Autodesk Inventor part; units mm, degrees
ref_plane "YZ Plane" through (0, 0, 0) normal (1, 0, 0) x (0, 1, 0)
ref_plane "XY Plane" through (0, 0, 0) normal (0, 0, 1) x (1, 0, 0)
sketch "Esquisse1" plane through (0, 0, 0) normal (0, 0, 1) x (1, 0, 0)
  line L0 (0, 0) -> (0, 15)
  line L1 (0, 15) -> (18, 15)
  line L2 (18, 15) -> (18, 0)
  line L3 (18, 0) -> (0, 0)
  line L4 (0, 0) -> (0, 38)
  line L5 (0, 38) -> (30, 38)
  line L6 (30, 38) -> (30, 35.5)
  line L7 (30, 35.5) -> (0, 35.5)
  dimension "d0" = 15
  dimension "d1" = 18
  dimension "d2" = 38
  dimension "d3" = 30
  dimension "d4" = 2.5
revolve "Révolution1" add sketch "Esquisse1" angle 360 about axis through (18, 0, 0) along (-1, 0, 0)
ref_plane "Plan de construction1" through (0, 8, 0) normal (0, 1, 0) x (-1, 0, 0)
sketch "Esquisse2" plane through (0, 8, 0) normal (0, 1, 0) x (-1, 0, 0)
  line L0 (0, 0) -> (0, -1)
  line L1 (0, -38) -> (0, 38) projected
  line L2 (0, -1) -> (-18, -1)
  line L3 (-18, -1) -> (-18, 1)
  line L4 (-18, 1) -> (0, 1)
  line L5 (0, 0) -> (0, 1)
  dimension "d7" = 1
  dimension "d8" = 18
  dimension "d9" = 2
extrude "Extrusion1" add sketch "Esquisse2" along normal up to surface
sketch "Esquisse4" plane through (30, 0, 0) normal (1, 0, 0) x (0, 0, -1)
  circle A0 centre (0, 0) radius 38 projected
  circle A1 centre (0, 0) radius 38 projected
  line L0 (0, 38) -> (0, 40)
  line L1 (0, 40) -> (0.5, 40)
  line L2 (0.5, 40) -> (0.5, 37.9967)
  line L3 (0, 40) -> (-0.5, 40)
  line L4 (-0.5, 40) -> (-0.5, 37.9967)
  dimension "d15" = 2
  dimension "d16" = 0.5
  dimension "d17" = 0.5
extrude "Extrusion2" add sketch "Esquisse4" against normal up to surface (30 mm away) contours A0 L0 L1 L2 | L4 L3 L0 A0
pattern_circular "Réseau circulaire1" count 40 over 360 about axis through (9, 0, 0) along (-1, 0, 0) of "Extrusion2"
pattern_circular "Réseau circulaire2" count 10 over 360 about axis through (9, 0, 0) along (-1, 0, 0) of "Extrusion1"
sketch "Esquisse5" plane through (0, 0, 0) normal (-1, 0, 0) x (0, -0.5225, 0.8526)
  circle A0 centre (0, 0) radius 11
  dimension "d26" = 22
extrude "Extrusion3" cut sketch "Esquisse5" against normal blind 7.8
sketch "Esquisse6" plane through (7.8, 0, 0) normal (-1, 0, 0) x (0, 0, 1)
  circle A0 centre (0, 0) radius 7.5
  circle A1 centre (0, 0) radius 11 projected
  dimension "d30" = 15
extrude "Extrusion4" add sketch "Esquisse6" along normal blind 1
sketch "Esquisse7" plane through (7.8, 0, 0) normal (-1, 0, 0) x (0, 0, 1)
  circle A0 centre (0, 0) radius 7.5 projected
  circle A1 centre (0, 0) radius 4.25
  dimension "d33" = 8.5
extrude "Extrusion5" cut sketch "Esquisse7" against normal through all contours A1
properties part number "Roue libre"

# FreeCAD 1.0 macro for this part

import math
import FreeCAD as App
import Part
import Sketcher
Q = App.Units.Quantity

doc = App.newDocument("Part")
body = doc.addObject("PartDesign::Body", "Body")
body.AllowCompound = True

# Sketch on XY plane
sketch1 = doc.addObject("Sketcher::SketchObject", "Sketch")
body.addObject(sketch1)
sketch1.AttachmentSupport = (doc.XY_Plane, [""])
sketch1.MapMode = "FlatFace"
sketch1.addGeometry([
    Part.LineSegment(App.Vector(0, 38, 0), App.Vector(0, 35.5, 0)),  # 0
    Part.LineSegment(App.Vector(0, 35.5, 0), App.Vector(30, 35.5, 0)),  # 1
    Part.LineSegment(App.Vector(30, 35.5, 0), App.Vector(30, 38, 0)),  # 2
    Part.LineSegment(App.Vector(30, 38, 0), App.Vector(0, 38, 0)),  # 3
    Part.LineSegment(App.Vector(0, 15, 0), App.Vector(0, 0, 0)),  # 4
    Part.LineSegment(App.Vector(0, 0, 0), App.Vector(18, 0, 0)),  # 5
    Part.LineSegment(App.Vector(18, 0, 0), App.Vector(18, 15, 0)),  # 6
    Part.LineSegment(App.Vector(18, 15, 0), App.Vector(0, 15, 0)),  # 7
], False)
sketch1.addConstraint([
    Sketcher.Constraint("Coincident", 0, 2, 1, 1),
    Sketcher.Constraint("Coincident", 1, 2, 2, 1),
    Sketcher.Constraint("Coincident", 2, 2, 3, 1),
    Sketcher.Constraint("Coincident", 3, 2, 0, 1),
    Sketcher.Constraint("Coincident", 4, 2, 5, 1),
    Sketcher.Constraint("Coincident", 5, 2, 6, 1),
    Sketcher.Constraint("Coincident", 6, 2, 7, 1),
    Sketcher.Constraint("Coincident", 7, 2, 4, 1),
    Sketcher.Constraint("Vertical", 0),
    Sketcher.Constraint("Horizontal", 1),
    Sketcher.Constraint("Vertical", 2),
    Sketcher.Constraint("Horizontal", 3),
    Sketcher.Constraint("Vertical", 4),
    Sketcher.Constraint("Horizontal", 5),
    Sketcher.Constraint("Vertical", 6),
    Sketcher.Constraint("Horizontal", 7),
    Sketcher.Constraint("Coincident", 4, 2, -1, 1),
    Sketcher.Constraint("PointOnObject", 0, 2, -2),
    Sketcher.Constraint("DistanceX", 1, 1, 1, 2, Q("30 mm")),
    Sketcher.Constraint("DistanceX", 5, 1, 5, 2, Q("18 mm")),
    Sketcher.Constraint("DistanceY", 4, 2, 4, 1, Q("15 mm")),
    Sketcher.Constraint("DistanceY", 0, 2, 0, 1, Q("2.5 mm")),
    Sketcher.Constraint("DistanceY", -1, 1, 2, 2, Q("38 mm")),
])
revolution = doc.addObject("PartDesign::Revolution", "Revolution")
body.addObject(revolution)
revolution.Profile = sketch1
revolution.ReferenceAxis = (sketch1, ["H_Axis"])
revolution.Angle = 360

# Sketch on XZ plane
sketch2 = doc.addObject("Sketcher::SketchObject", "Sketch001")
body.addObject(sketch2)
sketch2.AttachmentSupport = (doc.XZ_Plane, [""])
sketch2.MapMode = "FlatFace"
sketch2.AttachmentOffset = App.Placement(App.Vector(0, 0, -8), App.Rotation())
sketch2.addGeometry([
    Part.LineSegment(App.Vector(0, -1, 0), App.Vector(0, 1, 0)),
    Part.LineSegment(App.Vector(0, 1, 0), App.Vector(18, 1, 0)),
    Part.LineSegment(App.Vector(18, 1, 0), App.Vector(18, -1, 0)),
    Part.LineSegment(App.Vector(18, -1, 0), App.Vector(0, -1, 0)),
], False)
sketch2.addConstraint([
    Sketcher.Constraint("Coincident", 0, 2, 1, 1),
    Sketcher.Constraint("Coincident", 1, 2, 2, 1),
    Sketcher.Constraint("Coincident", 2, 2, 3, 1),
    Sketcher.Constraint("Coincident", 3, 2, 0, 1),
    Sketcher.Constraint("Vertical", 0),
    Sketcher.Constraint("Horizontal", 1),
    Sketcher.Constraint("Vertical", 2),
    Sketcher.Constraint("Horizontal", 3),
    Sketcher.Constraint("Symmetric", 0, 2, 3, 2, -1, 1),
    Sketcher.Constraint("DistanceX", 1, 1, 1, 2, Q("18 mm")),
    Sketcher.Constraint("DistanceY", 0, 1, 0, 2, Q("2 mm")),
])
pad1 = doc.addObject("PartDesign::Pad", "Pad")
body.addObject(pad1)
pad1.Profile = sketch2
pad1.Length = 27.5
pad1.Reversed = True

# Sketch on YZ plane
sketch3 = doc.addObject("Sketcher::SketchObject", "Sketch002")
body.addObject(sketch3)
sketch3.AttachmentSupport = (doc.YZ_Plane, [""])
sketch3.MapMode = "FlatFace"
sketch3.AttachmentOffset = App.Placement(App.Vector(0, 0, 30), App.Rotation())
sketch3.addGeometry([
    Part.LineSegment(App.Vector(38, -0.5, 0), App.Vector(40, -0.5, 0)),
    Part.LineSegment(App.Vector(40, -0.5, 0), App.Vector(40, 0.5, 0)),
    Part.LineSegment(App.Vector(40, 0.5, 0), App.Vector(38, 0.5, 0)),
    Part.ArcOfCircle(Part.Circle(App.Vector(0, 0, 0), App.Vector(0, 0, 1), 38), math.radians(-0.75), math.radians(0.75)),
], False)
sketch3.addConstraint([
    Sketcher.Constraint("Coincident", 0, 2, 1, 1),
    Sketcher.Constraint("Coincident", 1, 2, 2, 1),
    Sketcher.Constraint("Coincident", 2, 2, 3, 2),
    Sketcher.Constraint("Coincident", 3, 1, 0, 1),
    Sketcher.Constraint("Horizontal", 0),
    Sketcher.Constraint("Vertical", 1),
    Sketcher.Constraint("Horizontal", 2),
    Sketcher.Constraint("Coincident", 3, 3, -1, 1),
    Sketcher.Constraint("Vertical", 2, 2, 3, 1),
    Sketcher.Constraint("Radius", 3, Q("38 mm")),
    Sketcher.Constraint("DistanceY", 0, 2, -1, 1, Q("0.5 mm")),
    Sketcher.Constraint("DistanceX", -1, 1, 0, 2, Q("40 mm")),
])
pad2 = doc.addObject("PartDesign::Pad", "Pad001")
body.addObject(pad2)
pad2.Profile = sketch3
pad2.Length = 30
pad2.Reversed = True
doc.recompute()

polarpattern = doc.addObject("PartDesign::PolarPattern", "PolarPattern")
body.addObject(polarpattern)
polarpattern.Originals = [pad2]
polarpattern.Axis = (doc.X_Axis, [""])
polarpattern.Angle = 360
polarpattern.Occurrences = 40
body.Tip = polarpattern
doc.recompute()

polarpattern2 = doc.addObject("PartDesign::PolarPattern", "PolarPattern001")
body.addObject(polarpattern2)
polarpattern2.Originals = [pad1]
polarpattern2.Axis = (doc.X_Axis, [""])
polarpattern2.Angle = 360
polarpattern2.Occurrences = 10
body.Tip = polarpattern2

# Sketch on YZ plane
sketch4 = doc.addObject("Sketcher::SketchObject", "Sketch003")
body.addObject(sketch4)
sketch4.AttachmentSupport = (doc.YZ_Plane, [""])
sketch4.MapMode = "FlatFace"
sketch4.addGeometry(Part.Circle(App.Vector(0, 0, 0), App.Vector(0, 0, 1), 11), False)
sketch4.addConstraint([
    Sketcher.Constraint("Coincident", 0, 3, -1, 1),
    Sketcher.Constraint("Diameter", 0, Q("22 mm")),
])
pocket1 = doc.addObject("PartDesign::Pocket", "Pocket")
body.addObject(pocket1)
pocket1.Profile = sketch4
pocket1.Length = 7.8
pocket1.Reversed = True

# Sketch on YZ plane
sketch5 = doc.addObject("Sketcher::SketchObject", "Sketch004")
body.addObject(sketch5)
sketch5.AttachmentSupport = (doc.YZ_Plane, [""])
sketch5.MapMode = "FlatFace"
sketch5.AttachmentOffset = App.Placement(App.Vector(0, 0, 7.8), App.Rotation())
sketch5.addGeometry([
    Part.Circle(App.Vector(0, 0, 0), App.Vector(0, 0, 1), 11),
    Part.Circle(App.Vector(0, 0, 0), App.Vector(0, 0, 1), 8),
], False)
sketch5.addConstraint([
    Sketcher.Constraint("Coincident", 0, 3, -1, 1),
    Sketcher.Constraint("Coincident", 1, 3, -1, 1),
    Sketcher.Constraint("Diameter", 1, Q("15 mm")),
    Sketcher.Constraint("Diameter", 0, Q("22 mm")),
])
pad3 = doc.addObject("PartDesign::Pad", "Pad002")
body.addObject(pad3)
pad3.Profile = sketch5
pad3.Length = 1
pad3.Reversed = True

# Sketch on YZ plane
sketch6 = doc.addObject("Sketcher::SketchObject", "Sketch005")
body.addObject(sketch6)
sketch6.AttachmentSupport = (doc.YZ_Plane, [""])
sketch6.MapMode = "FlatFace"
sketch6.AttachmentOffset = App.Placement(App.Vector(0, 0, 7.8), App.Rotation())
sketch6.addGeometry(Part.Circle(App.Vector(0, 0, 0), App.Vector(0, 0, 1), 4.2), False)
sketch6.addConstraint([
    Sketcher.Constraint("Coincident", 0, 3, -1, 1),
    Sketcher.Constraint("Diameter", 0, Q("8.5 mm")),
])
pocket2 = doc.addObject("PartDesign::Pocket", "Pocket001")
body.addObject(pocket2)
pocket2.Profile = sketch6
pocket2.Type = "ThroughAll"
pocket2.Reversed = True

doc.recompute()
